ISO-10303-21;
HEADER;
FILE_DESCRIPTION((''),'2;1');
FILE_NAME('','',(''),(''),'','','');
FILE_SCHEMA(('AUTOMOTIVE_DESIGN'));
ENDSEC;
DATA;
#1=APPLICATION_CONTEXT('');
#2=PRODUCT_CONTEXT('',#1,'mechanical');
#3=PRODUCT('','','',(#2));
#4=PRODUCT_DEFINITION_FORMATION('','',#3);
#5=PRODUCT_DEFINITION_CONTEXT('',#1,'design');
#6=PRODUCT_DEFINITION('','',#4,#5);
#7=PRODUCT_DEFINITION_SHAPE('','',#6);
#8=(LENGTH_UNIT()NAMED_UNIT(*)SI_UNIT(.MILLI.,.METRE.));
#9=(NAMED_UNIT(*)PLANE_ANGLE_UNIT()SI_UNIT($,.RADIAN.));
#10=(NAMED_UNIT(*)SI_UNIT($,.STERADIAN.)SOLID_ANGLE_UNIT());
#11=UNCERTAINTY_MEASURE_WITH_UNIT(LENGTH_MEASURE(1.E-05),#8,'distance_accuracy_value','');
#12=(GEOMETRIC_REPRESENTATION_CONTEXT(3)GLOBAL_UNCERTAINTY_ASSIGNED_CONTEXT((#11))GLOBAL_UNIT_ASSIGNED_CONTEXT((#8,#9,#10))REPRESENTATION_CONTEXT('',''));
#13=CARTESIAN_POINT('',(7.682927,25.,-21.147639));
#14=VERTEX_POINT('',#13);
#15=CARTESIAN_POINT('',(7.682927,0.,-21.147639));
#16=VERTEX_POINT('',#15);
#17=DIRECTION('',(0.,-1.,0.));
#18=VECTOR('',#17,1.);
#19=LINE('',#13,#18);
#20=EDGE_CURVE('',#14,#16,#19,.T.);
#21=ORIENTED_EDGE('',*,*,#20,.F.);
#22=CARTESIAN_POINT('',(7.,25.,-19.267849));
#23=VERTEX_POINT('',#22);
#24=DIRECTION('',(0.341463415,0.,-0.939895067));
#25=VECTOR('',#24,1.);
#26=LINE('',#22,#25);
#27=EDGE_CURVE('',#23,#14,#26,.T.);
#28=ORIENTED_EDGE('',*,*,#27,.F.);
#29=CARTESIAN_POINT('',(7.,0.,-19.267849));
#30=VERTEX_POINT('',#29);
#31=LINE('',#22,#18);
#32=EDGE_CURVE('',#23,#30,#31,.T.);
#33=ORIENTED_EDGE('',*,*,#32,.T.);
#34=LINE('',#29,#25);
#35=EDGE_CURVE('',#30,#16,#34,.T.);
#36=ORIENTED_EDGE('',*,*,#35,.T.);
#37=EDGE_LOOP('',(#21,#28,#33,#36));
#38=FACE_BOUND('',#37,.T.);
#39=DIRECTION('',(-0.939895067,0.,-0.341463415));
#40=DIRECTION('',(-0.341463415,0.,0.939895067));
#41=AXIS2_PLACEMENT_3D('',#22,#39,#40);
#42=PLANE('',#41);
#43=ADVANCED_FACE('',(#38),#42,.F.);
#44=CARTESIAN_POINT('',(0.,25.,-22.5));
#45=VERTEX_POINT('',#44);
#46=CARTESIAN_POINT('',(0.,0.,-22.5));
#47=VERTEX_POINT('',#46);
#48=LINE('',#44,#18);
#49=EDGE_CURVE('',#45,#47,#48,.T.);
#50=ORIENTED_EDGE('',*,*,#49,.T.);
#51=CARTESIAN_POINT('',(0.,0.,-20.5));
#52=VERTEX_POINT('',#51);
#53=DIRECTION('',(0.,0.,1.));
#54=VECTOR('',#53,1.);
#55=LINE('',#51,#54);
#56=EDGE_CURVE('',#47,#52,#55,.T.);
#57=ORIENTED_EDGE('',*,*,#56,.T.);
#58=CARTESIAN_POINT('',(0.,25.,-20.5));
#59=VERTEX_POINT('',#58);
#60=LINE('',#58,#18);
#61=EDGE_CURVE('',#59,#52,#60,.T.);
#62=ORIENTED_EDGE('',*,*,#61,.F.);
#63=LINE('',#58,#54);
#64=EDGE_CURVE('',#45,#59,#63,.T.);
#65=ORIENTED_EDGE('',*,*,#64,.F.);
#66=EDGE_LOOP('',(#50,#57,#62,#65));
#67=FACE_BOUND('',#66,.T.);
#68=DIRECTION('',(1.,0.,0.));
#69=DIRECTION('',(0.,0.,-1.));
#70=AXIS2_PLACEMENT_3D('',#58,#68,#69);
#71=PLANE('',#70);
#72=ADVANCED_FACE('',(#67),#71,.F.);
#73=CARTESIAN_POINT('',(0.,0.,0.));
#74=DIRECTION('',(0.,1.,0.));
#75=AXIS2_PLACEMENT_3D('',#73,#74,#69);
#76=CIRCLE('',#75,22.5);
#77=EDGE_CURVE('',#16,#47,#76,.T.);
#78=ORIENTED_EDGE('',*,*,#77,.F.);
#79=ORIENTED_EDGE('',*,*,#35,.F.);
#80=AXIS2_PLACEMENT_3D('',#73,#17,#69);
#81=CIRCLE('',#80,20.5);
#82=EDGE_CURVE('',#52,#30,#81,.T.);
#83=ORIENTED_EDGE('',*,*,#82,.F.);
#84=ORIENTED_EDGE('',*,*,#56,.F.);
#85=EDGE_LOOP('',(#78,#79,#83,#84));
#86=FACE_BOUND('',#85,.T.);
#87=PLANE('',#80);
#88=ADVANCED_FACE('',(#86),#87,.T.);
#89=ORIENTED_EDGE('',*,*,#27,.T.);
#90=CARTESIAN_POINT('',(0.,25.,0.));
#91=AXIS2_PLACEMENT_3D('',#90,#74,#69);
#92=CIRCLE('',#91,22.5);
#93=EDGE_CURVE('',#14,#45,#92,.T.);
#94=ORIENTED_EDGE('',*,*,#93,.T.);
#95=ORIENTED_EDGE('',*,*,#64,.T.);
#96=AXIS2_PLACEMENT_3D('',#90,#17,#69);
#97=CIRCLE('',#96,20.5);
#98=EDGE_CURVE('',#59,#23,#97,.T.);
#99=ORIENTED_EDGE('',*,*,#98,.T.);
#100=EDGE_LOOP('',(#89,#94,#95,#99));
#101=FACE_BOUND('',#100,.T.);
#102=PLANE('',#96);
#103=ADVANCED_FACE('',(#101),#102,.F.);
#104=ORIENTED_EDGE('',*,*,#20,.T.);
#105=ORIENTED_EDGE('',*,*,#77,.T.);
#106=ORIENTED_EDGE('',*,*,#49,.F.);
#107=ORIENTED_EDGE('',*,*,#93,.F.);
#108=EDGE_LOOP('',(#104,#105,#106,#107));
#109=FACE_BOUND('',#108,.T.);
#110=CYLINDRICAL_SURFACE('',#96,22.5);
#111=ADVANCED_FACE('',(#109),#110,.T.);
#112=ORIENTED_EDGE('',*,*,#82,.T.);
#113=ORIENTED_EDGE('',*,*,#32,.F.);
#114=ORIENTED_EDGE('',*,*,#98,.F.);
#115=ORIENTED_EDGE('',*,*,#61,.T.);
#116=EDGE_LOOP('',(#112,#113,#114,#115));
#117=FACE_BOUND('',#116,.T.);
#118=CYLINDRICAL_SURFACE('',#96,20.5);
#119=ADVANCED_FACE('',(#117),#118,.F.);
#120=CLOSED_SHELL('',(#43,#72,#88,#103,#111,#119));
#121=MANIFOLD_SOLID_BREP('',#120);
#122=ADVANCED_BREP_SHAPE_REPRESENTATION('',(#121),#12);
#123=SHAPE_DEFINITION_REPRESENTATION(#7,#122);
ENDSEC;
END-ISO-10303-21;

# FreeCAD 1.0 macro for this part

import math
import FreeCAD as App
import Part
import Sketcher
from FreeCAD import Vector

doc = App.newDocument("Part")
body = doc.addObject("PartDesign::Body", "Body")

# Sketch on XZ plane
sketch1 = doc.addObject("Sketcher::SketchObject", "Sketch")
body.addObject(sketch1)
sketch1.AttachmentSupport = (doc.XZ_Plane, [""])
sketch1.MapMode = "FlatFace"
sketch1.addGeometry([
    Part.LineSegment(Vector(7, -19.3, 0), Vector(7.7, -21.1, 0)),
    Part.ArcOfCircle(Part.Circle(Vector(0, 0, 0), Vector(0, 0, 1), 22.5), math.radians(-90), math.radians(-70.03)),
    Part.LineSegment(Vector(0, -22.5, 0), Vector(0, -20.5, 0)),
    Part.ArcOfCircle(Part.Circle(Vector(0, 0, 0), Vector(0, 0, 1), 20.5), math.radians(-90), math.radians(-70.03)),
], False)
sketch1.addConstraint([
    Sketcher.Constraint("Coincident", 0, 2, 1, 2),
    Sketcher.Constraint("Coincident", 1, 1, 2, 1),
    Sketcher.Constraint("Coincident", 2, 2, 3, 1),
    Sketcher.Constraint("Coincident", 3, 2, 0, 1),
    Sketcher.Constraint("Vertical", 2),
    Sketcher.Constraint("Coincident", 1, 3, -1, 1),
    Sketcher.Constraint("Coincident", 3, 3, -1, 1),
    Sketcher.Constraint("PointOnObject", 1, 1, -2),
    Sketcher.Constraint("Radius", 1, 22.5),
    Sketcher.Constraint("Radius", 3, 20.5),
    Sketcher.Constraint("DistanceX", -1, 1, 3, 2, 7.0),
    Sketcher.Constraint("DistanceY", 0, 2, -1, 1, 21.147639),
])
pad1 = doc.addObject("PartDesign::Pad", "Pad")
body.addObject(pad1)
pad1.Profile = sketch1
pad1.Length = 25
pad1.Reversed = True

doc.recompute()
